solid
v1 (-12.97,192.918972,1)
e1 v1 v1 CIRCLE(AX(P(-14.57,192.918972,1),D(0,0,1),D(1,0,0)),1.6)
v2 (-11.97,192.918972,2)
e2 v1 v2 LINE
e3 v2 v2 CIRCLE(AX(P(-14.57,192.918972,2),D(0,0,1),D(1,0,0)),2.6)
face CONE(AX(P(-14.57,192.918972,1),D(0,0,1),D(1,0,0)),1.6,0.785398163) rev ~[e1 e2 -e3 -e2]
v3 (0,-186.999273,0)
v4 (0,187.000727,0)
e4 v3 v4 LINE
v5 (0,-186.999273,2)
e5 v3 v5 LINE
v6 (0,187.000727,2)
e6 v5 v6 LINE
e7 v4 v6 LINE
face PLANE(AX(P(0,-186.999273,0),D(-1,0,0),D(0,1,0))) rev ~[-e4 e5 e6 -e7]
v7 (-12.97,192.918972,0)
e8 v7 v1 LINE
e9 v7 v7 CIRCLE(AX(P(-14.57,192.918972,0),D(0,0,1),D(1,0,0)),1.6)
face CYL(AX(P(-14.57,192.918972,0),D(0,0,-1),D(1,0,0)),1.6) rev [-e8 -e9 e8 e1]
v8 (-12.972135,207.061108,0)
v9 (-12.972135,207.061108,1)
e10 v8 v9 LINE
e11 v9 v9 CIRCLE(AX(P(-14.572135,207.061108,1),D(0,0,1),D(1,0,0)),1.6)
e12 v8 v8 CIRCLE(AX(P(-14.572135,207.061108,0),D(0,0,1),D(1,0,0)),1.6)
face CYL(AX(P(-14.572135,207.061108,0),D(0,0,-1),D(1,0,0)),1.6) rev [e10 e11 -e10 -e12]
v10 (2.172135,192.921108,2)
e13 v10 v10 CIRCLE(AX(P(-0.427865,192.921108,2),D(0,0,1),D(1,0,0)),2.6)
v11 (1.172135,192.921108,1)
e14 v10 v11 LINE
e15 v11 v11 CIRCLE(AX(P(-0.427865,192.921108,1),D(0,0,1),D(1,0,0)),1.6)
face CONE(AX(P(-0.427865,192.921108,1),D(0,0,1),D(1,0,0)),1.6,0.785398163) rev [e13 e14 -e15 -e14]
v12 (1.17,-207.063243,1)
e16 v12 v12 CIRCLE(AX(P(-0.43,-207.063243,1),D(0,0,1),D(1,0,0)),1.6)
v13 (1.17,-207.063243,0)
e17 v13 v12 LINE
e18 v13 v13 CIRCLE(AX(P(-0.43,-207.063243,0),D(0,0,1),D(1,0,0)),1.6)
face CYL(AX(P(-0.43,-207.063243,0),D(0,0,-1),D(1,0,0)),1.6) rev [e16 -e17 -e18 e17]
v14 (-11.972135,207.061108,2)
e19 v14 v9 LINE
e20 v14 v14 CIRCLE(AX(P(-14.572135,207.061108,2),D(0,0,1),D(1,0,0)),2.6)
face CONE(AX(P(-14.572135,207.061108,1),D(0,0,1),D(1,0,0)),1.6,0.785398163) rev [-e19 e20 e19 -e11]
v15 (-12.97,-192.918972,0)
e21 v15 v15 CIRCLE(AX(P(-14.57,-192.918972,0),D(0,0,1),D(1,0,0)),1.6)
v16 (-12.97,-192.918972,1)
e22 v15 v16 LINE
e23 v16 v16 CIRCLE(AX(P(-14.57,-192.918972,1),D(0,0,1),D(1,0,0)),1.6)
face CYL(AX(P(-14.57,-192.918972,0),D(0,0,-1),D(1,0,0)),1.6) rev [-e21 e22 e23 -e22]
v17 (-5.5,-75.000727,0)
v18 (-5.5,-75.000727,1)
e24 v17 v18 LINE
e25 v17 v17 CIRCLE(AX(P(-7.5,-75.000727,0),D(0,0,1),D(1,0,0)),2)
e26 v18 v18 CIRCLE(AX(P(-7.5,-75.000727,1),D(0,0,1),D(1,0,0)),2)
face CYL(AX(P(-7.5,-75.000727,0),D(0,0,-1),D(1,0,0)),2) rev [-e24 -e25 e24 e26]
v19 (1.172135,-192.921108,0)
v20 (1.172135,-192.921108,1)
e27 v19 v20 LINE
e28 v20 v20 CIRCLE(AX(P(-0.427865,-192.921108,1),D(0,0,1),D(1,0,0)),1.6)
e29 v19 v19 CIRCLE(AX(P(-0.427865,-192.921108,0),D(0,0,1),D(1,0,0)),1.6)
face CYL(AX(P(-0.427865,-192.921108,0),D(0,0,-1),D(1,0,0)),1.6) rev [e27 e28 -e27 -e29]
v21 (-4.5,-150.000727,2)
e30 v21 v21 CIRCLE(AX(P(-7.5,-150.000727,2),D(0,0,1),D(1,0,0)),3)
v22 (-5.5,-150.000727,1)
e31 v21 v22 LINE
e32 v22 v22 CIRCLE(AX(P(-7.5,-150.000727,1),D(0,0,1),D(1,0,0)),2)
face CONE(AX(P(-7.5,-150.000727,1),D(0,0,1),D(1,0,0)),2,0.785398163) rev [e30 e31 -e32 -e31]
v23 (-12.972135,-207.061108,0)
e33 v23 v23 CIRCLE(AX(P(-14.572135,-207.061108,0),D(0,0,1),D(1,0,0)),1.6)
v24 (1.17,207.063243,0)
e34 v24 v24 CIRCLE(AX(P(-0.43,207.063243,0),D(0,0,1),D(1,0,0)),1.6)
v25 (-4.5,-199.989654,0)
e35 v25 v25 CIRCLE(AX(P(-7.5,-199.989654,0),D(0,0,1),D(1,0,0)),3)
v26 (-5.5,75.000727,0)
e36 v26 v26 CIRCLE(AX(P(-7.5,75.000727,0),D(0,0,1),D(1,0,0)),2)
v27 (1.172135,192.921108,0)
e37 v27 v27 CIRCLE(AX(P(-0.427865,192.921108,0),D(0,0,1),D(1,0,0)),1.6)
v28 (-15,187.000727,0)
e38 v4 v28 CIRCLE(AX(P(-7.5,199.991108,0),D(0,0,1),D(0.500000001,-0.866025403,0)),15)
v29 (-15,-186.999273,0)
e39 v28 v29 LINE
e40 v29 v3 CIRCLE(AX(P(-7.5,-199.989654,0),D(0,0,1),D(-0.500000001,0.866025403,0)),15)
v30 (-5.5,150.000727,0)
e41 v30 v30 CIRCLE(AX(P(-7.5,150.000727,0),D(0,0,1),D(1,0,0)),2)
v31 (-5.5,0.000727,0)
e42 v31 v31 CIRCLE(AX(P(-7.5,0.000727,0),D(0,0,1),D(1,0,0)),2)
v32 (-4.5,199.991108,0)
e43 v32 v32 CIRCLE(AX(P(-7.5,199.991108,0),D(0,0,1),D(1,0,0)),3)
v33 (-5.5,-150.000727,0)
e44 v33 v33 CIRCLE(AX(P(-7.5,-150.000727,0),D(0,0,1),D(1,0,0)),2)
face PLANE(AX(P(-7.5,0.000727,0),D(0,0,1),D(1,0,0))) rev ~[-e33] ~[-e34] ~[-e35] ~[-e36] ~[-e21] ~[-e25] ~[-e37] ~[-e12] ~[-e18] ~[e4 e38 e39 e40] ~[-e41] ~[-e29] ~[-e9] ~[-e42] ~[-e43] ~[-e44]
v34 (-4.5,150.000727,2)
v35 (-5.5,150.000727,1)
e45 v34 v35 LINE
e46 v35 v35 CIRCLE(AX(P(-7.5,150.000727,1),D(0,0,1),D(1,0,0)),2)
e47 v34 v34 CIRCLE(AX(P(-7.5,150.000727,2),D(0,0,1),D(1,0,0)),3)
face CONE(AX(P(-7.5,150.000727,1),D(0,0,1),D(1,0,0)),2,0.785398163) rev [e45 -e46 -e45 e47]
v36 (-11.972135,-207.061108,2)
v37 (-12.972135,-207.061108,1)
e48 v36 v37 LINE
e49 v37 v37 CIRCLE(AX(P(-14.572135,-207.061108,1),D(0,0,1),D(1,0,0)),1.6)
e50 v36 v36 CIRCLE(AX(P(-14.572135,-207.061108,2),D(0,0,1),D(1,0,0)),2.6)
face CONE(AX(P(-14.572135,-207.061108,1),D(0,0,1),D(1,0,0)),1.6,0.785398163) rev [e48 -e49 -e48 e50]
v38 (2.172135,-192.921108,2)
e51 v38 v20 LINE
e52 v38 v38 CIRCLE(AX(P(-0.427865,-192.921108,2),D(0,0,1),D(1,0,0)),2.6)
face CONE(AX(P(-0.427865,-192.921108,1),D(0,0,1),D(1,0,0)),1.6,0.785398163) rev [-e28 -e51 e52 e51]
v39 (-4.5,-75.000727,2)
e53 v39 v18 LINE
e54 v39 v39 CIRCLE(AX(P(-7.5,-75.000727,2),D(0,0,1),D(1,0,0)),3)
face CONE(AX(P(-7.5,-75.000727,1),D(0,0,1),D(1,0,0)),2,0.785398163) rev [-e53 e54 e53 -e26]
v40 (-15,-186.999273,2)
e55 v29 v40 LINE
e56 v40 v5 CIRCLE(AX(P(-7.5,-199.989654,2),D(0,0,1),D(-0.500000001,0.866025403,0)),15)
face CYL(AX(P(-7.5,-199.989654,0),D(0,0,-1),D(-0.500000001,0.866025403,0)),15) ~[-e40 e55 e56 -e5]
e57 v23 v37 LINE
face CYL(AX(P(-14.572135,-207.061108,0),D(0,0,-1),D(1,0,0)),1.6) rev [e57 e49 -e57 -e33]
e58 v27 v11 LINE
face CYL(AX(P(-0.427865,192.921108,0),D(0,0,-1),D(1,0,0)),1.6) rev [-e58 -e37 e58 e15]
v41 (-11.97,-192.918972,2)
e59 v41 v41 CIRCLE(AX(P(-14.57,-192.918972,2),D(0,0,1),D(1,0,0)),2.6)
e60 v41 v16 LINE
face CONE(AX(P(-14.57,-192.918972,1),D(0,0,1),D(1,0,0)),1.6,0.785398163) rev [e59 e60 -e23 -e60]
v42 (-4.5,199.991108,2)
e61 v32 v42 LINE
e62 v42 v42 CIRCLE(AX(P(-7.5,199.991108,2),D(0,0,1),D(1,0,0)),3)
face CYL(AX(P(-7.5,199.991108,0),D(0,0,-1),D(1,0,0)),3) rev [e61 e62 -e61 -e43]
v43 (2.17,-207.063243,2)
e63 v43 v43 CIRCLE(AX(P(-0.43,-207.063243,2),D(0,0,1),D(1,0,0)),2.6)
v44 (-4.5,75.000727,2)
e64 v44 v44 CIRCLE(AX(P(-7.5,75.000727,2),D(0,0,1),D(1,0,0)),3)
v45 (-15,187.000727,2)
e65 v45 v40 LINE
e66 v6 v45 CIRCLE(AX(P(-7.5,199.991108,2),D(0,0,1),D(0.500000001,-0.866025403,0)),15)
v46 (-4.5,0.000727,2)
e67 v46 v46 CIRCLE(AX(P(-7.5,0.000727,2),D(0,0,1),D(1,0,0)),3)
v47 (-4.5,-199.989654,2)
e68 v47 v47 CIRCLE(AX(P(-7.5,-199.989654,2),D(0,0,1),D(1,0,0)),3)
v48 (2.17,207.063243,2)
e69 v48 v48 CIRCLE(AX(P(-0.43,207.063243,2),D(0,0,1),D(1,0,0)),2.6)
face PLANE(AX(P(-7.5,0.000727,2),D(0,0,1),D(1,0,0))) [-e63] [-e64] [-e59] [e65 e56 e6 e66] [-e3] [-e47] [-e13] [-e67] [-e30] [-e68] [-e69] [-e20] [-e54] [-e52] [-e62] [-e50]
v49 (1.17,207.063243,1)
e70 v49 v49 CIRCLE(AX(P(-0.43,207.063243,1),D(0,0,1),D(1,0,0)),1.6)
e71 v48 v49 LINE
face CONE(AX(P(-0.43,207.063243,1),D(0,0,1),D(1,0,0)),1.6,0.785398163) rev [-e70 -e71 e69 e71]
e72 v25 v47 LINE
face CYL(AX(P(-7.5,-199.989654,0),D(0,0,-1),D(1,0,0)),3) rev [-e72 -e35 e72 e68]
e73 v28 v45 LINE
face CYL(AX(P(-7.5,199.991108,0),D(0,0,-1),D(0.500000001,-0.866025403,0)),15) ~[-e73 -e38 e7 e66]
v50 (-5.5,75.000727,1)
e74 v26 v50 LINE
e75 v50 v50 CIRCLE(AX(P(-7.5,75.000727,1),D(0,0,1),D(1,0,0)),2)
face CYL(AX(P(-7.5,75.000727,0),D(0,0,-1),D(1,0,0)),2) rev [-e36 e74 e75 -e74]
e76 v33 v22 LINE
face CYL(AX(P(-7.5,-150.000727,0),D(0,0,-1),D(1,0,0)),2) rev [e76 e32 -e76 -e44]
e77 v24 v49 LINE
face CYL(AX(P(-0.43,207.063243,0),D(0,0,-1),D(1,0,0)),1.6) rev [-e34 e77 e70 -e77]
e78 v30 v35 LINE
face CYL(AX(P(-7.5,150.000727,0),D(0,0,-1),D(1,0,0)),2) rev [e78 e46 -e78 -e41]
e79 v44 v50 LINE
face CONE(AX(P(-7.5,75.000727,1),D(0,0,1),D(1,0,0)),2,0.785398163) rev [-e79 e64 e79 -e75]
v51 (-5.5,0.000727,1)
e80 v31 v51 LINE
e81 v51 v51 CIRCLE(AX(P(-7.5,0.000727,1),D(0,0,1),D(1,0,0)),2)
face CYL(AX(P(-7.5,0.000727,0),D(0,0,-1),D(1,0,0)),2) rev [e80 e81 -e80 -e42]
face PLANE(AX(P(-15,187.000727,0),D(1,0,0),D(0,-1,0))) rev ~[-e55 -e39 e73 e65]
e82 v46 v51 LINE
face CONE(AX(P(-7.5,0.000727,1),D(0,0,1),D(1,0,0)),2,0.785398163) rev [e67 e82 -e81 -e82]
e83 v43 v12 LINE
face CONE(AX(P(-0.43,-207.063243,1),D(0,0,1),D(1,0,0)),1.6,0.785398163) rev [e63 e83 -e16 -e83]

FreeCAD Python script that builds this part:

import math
import FreeCAD as App
import Part
import Sketcher
Q = App.Units.Quantity


def edges_at(feature, points):
    """Names of the edges that pass closest to the given points."""
    edges = feature.Shape.Edges
    near = lambda p: min(range(len(edges)), key=lambda i: edges[i].distToShape(Part.Vertex(*p))[0])
    return sorted({f"Edge{near(p) + 1}" for p in points})

doc = App.newDocument("Part")
body = doc.addObject("PartDesign::Body", "Body")

# Sketch on XY plane
sketch1 = body.newObject("Sketcher::SketchObject", "Sketch")
sketch1.AttachmentSupport = (doc.getObject("XY_Plane"), [""])
sketch1.MapMode = "FlatFace"
sketch1.addGeometry(Part.ArcOfCircle(Part.Circle(App.Vector(-7.5, 200, 0), App.Vector(0, 0, 1), 15), math.radians(-60), math.radians(240)), False)
sketch1.addGeometry(Part.LineSegment(App.Vector(-15, 187, 0), App.Vector(-15, -187, 0)), False)
sketch1.addGeometry(Part.ArcOfCircle(Part.Circle(App.Vector(-7.5, -200, 0), App.Vector(0, 0, 1), 15), math.radians(120), math.radians(420)), False)
sketch1.addGeometry(Part.LineSegment(App.Vector(0, -187, 0), App.Vector(0, 187, 0)), False)
sketch1.addGeometry(Part.Circle(App.Vector(-14.6, -207.1, 0), App.Vector(0, 0, 1), 1.6), False)
sketch1.addGeometry(Part.Circle(App.Vector(-14.6, -192.9, 0), App.Vector(0, 0, 1), 1.6), False)
sketch1.addGeometry(Part.Circle(App.Vector(-7.5, -200, 0), App.Vector(0, 0, 1), 3), False)
sketch1.addGeometry(Part.Circle(App.Vector(-7.5, -150, 0), App.Vector(0, 0, 1), 2), False)
sketch1.addGeometry(Part.Circle(App.Vector(-7.5, -75, 0), App.Vector(0, 0, 1), 2), False)
sketch1.addGeometry(Part.Circle(App.Vector(-0.4, -207.1, 0), App.Vector(0, 0, 1), 1.6), False)
sketch1.addGeometry(Part.Circle(App.Vector(-0.4, -192.9, 0), App.Vector(0, 0, 1), 1.6), False)
sketch1.addGeometry(Part.Circle(App.Vector(-7.5, 0, 0), App.Vector(0, 0, 1), 2), False)
sketch1.addGeometry(Part.Circle(App.Vector(-7.5, 75, 0), App.Vector(0, 0, 1), 2), False)
sketch1.addGeometry(Part.Circle(App.Vector(-14.6, 192.9, 0), App.Vector(0, 0, 1), 1.6), False)
sketch1.addGeometry(Part.Circle(App.Vector(-14.6, 207.1, 0), App.Vector(0, 0, 1), 1.6), False)
sketch1.addGeometry(Part.Circle(App.Vector(-7.5, 150, 0), App.Vector(0, 0, 1), 2), False)
sketch1.addGeometry(Part.Circle(App.Vector(-7.5, 200, 0), App.Vector(0, 0, 1), 3), False)
sketch1.addGeometry(Part.Circle(App.Vector(-0.4, 192.9, 0), App.Vector(0, 0, 1), 1.6), False)
sketch1.addGeometry(Part.Circle(App.Vector(-0.4, 207.1, 0), App.Vector(0, 0, 1), 1.6), False)
sketch1.addConstraint(Sketcher.Constraint("Coincident", 0, 2, 1, 1))
sketch1.addConstraint(Sketcher.Constraint("Coincident", 1, 2, 2, 1))
sketch1.addConstraint(Sketcher.Constraint("Coincident", 2, 2, 3, 1))
sketch1.addConstraint(Sketcher.Constraint("Coincident", 3, 2, 0, 1))
sketch1.addConstraint(Sketcher.Constraint("Vertical", 1))
sketch1.addConstraint(Sketcher.Constraint("Vertical", 3))
sketch1.addConstraint(Sketcher.Constraint("Coincident", 6, 3, 2, 3))
sketch1.addConstraint(Sketcher.Constraint("Coincident", 16, 3, 0, 3))
sketch1.addConstraint(Sketcher.Constraint("Equal", 0, 2))
sketch1.addConstraint(Sketcher.Constraint("Equal", 4, 5))
sketch1.addConstraint(Sketcher.Constraint("Equal", 7, 8))
sketch1.addConstraint(Sketcher.Constraint("Equal", 5, 9))
sketch1.addConstraint(Sketcher.Constraint("Equal", 9, 10))
sketch1.addConstraint(Sketcher.Constraint("Equal", 8, 11))
sketch1.addConstraint(Sketcher.Constraint("Equal", 11, 12))
sketch1.addConstraint(Sketcher.Constraint("Equal", 10, 13))
sketch1.addConstraint(Sketcher.Constraint("Equal", 13, 14))
sketch1.addConstraint(Sketcher.Constraint("Equal", 12, 15))
sketch1.addConstraint(Sketcher.Constraint("Equal", 6, 16))
sketch1.addConstraint(Sketcher.Constraint("Equal", 14, 17))
sketch1.addConstraint(Sketcher.Constraint("Equal", 17, 18))
sketch1.addConstraint(Sketcher.Constraint("Symmetric", 8, 3, 12, 3, -1))
sketch1.addConstraint(Sketcher.Constraint("Symmetric", 5, 3, 13, 3, -1))
sketch1.addConstraint(Sketcher.Constraint("Symmetric", 4, 3, 14, 3, -1))
sketch1.addConstraint(Sketcher.Constraint("Symmetric", 7, 3, 15, 3, -1))
sketch1.addConstraint(Sketcher.Constraint("Symmetric", 10, 3, 17, 3, -1))
sketch1.addConstraint(Sketcher.Constraint("Symmetric", 9, 3, 18, 3, -1))
sketch1.addConstraint(Sketcher.Constraint("PointOnObject", 2, 2, -2))
sketch1.addConstraint(Sketcher.Constraint("Horizontal", 1, 2, 2, 2))
sketch1.addConstraint(Sketcher.Constraint("Horizontal", 0, 2, 3, 2))
sketch1.addConstraint(Sketcher.Constraint("Vertical", 6, 3, 7, 3))
sketch1.addConstraint(Sketcher.Constraint("Vertical", 7, 3, 8, 3))
sketch1.addConstraint(Sketcher.Constraint("Vertical", 8, 3, 11, 3))
sketch1.addConstraint(Sketcher.Constraint("Diameter", 6, Q("6 mm")))
sketch1.addConstraint(Sketcher.Constraint("Diameter", 7, Q("4 mm")))
sketch1.addConstraint(Sketcher.Constraint("Radius", 0, Q("15 mm")))
sketch1.addConstraint(Sketcher.Constraint("Diameter", 4, Q("3.2 mm")))
sketch1.addConstraint(Sketcher.Constraint("DistanceY", 1, 2, 1, 1, Q("374 mm")))
sketch1.addConstraint(Sketcher.Constraint("DistanceX", 0, 2, -1, 1, Q("15 mm")))
sketch1.addConstraint(Sketcher.Constraint("DistanceY", 7, 3, 8, 3, Q("75 mm")))
sketch1.addConstraint(Sketcher.Constraint("DistanceY", 11, 3, 12, 3, Q("75 mm")))
sketch1.addConstraint(Sketcher.Constraint("DistanceX", 5, 3, -1, 1, Q("14.57 mm")))
sketch1.addConstraint(Sketcher.Constraint("DistanceX", 9, 3, -1, 1, Q("0.43 mm")))
sketch1.addConstraint(Sketcher.Constraint("DistanceY", 4, 3, 10, 3, Q("14.14 mm")))
sketch1.addConstraint(Sketcher.Constraint("DistanceY", 0, 3, 14, 3, Q("7.07 mm")))
sketch1.addConstraint(Sketcher.Constraint("DistanceY", 5, 3, 11, 3, Q("192.919699 mm")))
sketch1.addConstraint(Sketcher.Constraint("DistanceY", 5, 3, 1, 2, Q("5.919699 mm")))
sketch1.addConstraint(Sketcher.Constraint("DistanceY", -1, 1, 0, 3, Q("199.991108 mm")))
sketch1.addConstraint(Sketcher.Constraint("DistanceY", 9, 3, 2, 3, Q("7.073589 mm")))
sketch1.addConstraint(Sketcher.Constraint("DistanceX", 4, 3, 10, 3, Q("14.14427 mm")))
sketch1.addConstraint(Sketcher.Constraint("DistanceX", 4, 3, -1, 1, Q("14.572135 mm")))
pad1 = body.newObject("PartDesign::Pad", "Pad")
pad1.Profile = sketch1
pad1.Length = 2
doc.recompute()

chamfer = body.newObject("PartDesign::Chamfer", "Chamfer")
chamfer.Base = (pad1, edges_at(pad1, [(-16.17, 192.919, 2)]))
chamfer.Size = 1
doc.recompute()

chamfer2 = body.newObject("PartDesign::Chamfer", "Chamfer001")
chamfer2.Base = (chamfer, edges_at(chamfer, [(-16.172, 207.061, 2), (-2.03, 207.063, 2), (-2.028, 192.921, 2)]))
chamfer2.Size = 1
doc.recompute()

chamfer3 = body.newObject("PartDesign::Chamfer", "Chamfer002")
chamfer3.Base = (chamfer2, edges_at(chamfer2, [
    (-16.17, -192.919, 2),
    (-16.172, -207.061, 2),
    (-2.03, -207.063, 2),
    (-2.028, -192.921, 2),
]))
chamfer3.Size = 1
doc.recompute()

chamfer4 = body.newObject("PartDesign::Chamfer", "Chamfer003")
chamfer4.Base = (chamfer3, edges_at(chamfer3, [
    (-9.5, 150.001, 2),
    (-9.5, 75.001, 2),
    (-9.5, 0.001, 2),
    (-9.5, -75.001, 2),
    (-9.5, -150.001, 2),
]))
chamfer4.Size = 1

doc.recompute()
